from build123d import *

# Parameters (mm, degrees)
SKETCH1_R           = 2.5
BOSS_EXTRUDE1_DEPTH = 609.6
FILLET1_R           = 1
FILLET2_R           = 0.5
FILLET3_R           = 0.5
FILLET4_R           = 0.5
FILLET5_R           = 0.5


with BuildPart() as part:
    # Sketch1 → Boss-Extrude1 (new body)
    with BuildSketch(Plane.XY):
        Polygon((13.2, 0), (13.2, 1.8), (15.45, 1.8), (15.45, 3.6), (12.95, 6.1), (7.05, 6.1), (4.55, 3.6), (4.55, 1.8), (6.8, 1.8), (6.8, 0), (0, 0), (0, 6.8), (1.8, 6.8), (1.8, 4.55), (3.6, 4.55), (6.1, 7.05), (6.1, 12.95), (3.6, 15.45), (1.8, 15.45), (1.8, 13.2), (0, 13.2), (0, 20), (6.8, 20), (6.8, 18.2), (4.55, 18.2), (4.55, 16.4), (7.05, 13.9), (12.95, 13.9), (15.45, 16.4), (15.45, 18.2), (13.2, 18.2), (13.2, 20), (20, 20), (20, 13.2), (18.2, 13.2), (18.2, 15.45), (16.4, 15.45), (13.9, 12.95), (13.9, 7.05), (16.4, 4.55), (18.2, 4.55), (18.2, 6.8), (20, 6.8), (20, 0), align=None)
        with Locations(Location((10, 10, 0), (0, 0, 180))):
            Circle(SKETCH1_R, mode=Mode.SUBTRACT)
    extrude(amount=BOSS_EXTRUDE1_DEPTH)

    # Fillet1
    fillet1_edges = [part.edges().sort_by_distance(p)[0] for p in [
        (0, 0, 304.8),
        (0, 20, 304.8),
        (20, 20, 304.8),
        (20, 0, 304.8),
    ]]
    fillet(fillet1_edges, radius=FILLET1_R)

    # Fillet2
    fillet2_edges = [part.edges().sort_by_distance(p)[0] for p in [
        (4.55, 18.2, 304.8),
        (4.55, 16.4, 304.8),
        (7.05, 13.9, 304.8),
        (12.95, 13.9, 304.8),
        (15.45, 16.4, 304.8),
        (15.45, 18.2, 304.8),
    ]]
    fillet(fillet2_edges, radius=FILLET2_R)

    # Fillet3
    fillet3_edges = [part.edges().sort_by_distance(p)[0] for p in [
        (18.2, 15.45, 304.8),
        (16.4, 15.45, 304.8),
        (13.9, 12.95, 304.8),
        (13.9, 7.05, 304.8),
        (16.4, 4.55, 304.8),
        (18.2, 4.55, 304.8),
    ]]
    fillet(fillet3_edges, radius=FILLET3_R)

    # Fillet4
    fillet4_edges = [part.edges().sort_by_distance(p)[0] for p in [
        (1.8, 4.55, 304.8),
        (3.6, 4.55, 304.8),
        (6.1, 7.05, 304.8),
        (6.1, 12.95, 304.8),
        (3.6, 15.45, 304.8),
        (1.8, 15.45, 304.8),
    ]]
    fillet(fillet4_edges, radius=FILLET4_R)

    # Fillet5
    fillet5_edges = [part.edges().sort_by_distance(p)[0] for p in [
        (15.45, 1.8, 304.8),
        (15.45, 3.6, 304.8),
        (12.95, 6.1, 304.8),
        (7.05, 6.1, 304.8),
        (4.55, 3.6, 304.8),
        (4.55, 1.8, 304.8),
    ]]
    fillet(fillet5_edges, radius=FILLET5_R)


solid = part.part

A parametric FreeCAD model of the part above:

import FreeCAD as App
import Part
import Sketcher
from FreeCAD import Vector
Q = App.Units.Quantity


def edges_at(feature, points):
    """Names of the edges that pass closest to the given points."""
    edges = feature.Shape.Edges
    near = lambda p: min(range(len(edges)), key=lambda i: edges[i].distToShape(Part.Vertex(*p))[0])
    return sorted({f"Edge{near(p) + 1}" for p in points})


def add_polygon(sketch, points):
    """Adds a closed chain of lines whose ends are joined by coincident constraints."""
    first, n = sketch.GeometryCount, len(points)
    for a, b in zip(points, points[1:] + points[:1]):
        sketch.addGeometry(Part.LineSegment(App.Vector(*a, 0), App.Vector(*b, 0)), False)
    for i in range(n):
        sketch.addConstraint(Sketcher.Constraint("Coincident", first + i, 2, first + (i + 1) % n, 1))

doc = App.newDocument("Part")
params = doc.addObject("Spreadsheet::Sheet", "Params")
for row, (alias, value) in enumerate([
    ("sketch1_diameter", "5 mm"),
    ("sketch1_width", "6.8 mm"),
    ("sketch1_width2", "1.8 mm"),
    ("sketch1_width3", "5.9 mm"),
    ("sketch1_width4", "2.25 mm"),
    ("pad1_length", "609.6 mm"),
    ("fillet_radius", "1 mm"),
    ("fillet2_radius", "0.5 mm"),
    ("fillet3_radius", "0.5 mm"),
    ("fillet4_radius", "0.5 mm"),
    ("fillet5_radius", "0.5 mm"),
], start=1):
    params.set(f"A{row}", alias)
    params.set(f"B{row}", "=" + value)
    params.setAlias(f"B{row}", alias)

body = doc.addObject("PartDesign::Body", "Body")

# Sketch on XY plane
sketch1 = doc.addObject("Sketcher::SketchObject", "Sketch")
body.addObject(sketch1)
sketch1.AttachmentSupport = (doc.XY_Plane, [""])
sketch1.MapMode = "FlatFace"
add_polygon(sketch1, [(13.2, 1.8), (13.2, 0), (20, 0), (20, 6.8), (18.2, 6.8), (18.2, 4.5), (16.4, 4.5), (13.9, 7), (13.9, 12.9), (16.4, 15.4), (18.2, 15.4), (18.2, 13.2), (20, 13.2), (20, 20), (13.2, 20), (13.2, 18.2), (15.4, 18.2), (15.4, 16.4), (12.9, 13.9), (7, 13.9), (4.5, 16.4), (4.5, 18.2), (6.8, 18.2), (6.8, 20), (0, 20), (0, 13.2), (1.8, 13.2), (1.8, 15.4), (3.6, 15.4), (6.1, 12.9), (6.1, 7), (3.6, 4.5), (1.8, 4.5), (1.8, 6.8), (0, 6.8), (0, 0), (6.8, 0), (6.8, 1.8), (4.5, 1.8), (4.5, 3.6), (7, 6.1), (12.9, 6.1), (15.4, 3.6), (15.4, 1.8)])  # lines 0-43
sketch1.addGeometry(Part.Circle(Vector(10, 10, 0), Vector(0, 0, 1), 2.5), False)  # 44
sketch1.addConstraint(Sketcher.Constraint("Vertical", 0))
sketch1.addConstraint(Sketcher.Constraint("Horizontal", 1))
sketch1.addConstraint(Sketcher.Constraint("Vertical", 2))
sketch1.addConstraint(Sketcher.Constraint("Horizontal", 3))
sketch1.addConstraint(Sketcher.Constraint("Vertical", 4))
sketch1.addConstraint(Sketcher.Constraint("Horizontal", 5))
sketch1.addConstraint(Sketcher.Constraint("Vertical", 7))
sketch1.addConstraint(Sketcher.Constraint("Horizontal", 9))
sketch1.addConstraint(Sketcher.Constraint("Vertical", 10))
sketch1.addConstraint(Sketcher.Constraint("Horizontal", 11))
sketch1.addConstraint(Sketcher.Constraint("Vertical", 12))
sketch1.addConstraint(Sketcher.Constraint("Horizontal", 13))
sketch1.addConstraint(Sketcher.Constraint("Vertical", 14))
sketch1.addConstraint(Sketcher.Constraint("Horizontal", 15))
sketch1.addConstraint(Sketcher.Constraint("Vertical", 16))
sketch1.addConstraint(Sketcher.Constraint("Horizontal", 18))
sketch1.addConstraint(Sketcher.Constraint("Vertical", 20))
sketch1.addConstraint(Sketcher.Constraint("Horizontal", 21))
sketch1.addConstraint(Sketcher.Constraint("Vertical", 22))
sketch1.addConstraint(Sketcher.Constraint("Horizontal", 23))
sketch1.addConstraint(Sketcher.Constraint("Vertical", 24))
sketch1.addConstraint(Sketcher.Constraint("Horizontal", 25))
sketch1.addConstraint(Sketcher.Constraint("Vertical", 26))
sketch1.addConstraint(Sketcher.Constraint("Horizontal", 27))
sketch1.addConstraint(Sketcher.Constraint("Vertical", 29))
sketch1.addConstraint(Sketcher.Constraint("Horizontal", 31))
sketch1.addConstraint(Sketcher.Constraint("Vertical", 32))
sketch1.addConstraint(Sketcher.Constraint("Horizontal", 33))
sketch1.addConstraint(Sketcher.Constraint("Vertical", 34))
sketch1.addConstraint(Sketcher.Constraint("Horizontal", 35))
sketch1.addConstraint(Sketcher.Constraint("Vertical", 36))
sketch1.addConstraint(Sketcher.Constraint("Horizontal", 37))
sketch1.addConstraint(Sketcher.Constraint("Vertical", 38))
sketch1.addConstraint(Sketcher.Constraint("Horizontal", 40))
sketch1.addConstraint(Sketcher.Constraint("Vertical", 42))
sketch1.addConstraint(Sketcher.Constraint("Horizontal", 43))
sketch1.addConstraint(Sketcher.Constraint("Coincident", 34, 2, -1, 1))
sketch1.addConstraint(Sketcher.Constraint("PointOnObject", 0, 2, -1))
sketch1.addConstraint(Sketcher.Constraint("PointOnObject", 23, 2, -2))
sketch1.addConstraint(Sketcher.Constraint("Perpendicular", 6, 8))
sketch1.addConstraint(Sketcher.Constraint("Parallel", 8, 17))
sketch1.addConstraint(Sketcher.Constraint("Perpendicular", 17, 19))
sketch1.addConstraint(Sketcher.Constraint("Parallel", 19, 28))
sketch1.addConstraint(Sketcher.Constraint("Perpendicular", 28, 30))
sketch1.addConstraint(Sketcher.Constraint("Parallel", 30, 39))
sketch1.addConstraint(Sketcher.Constraint("Perpendicular", 39, 41))
sketch1.addConstraint(Sketcher.Constraint("Horizontal", 16, 2, 19, 2))
sketch1.addConstraint(Sketcher.Constraint("Horizontal", 15, 2, 20, 2))
sketch1.addConstraint(Sketcher.Constraint("Horizontal", 13, 2, 22, 2))
sketch1.addConstraint(Sketcher.Constraint("Horizontal", 11, 2, 24, 2))
sketch1.addConstraint(Sketcher.Constraint("Horizontal", 9, 2, 26, 2))
sketch1.addConstraint(Sketcher.Constraint("Horizontal", 7, 2, 28, 2))
sketch1.addConstraint(Sketcher.Constraint("Horizontal", 6, 2, 29, 2))
sketch1.addConstraint(Sketcher.Constraint("Horizontal", 5, 2, 30, 2))
sketch1.addConstraint(Sketcher.Constraint("Horizontal", 3, 2, 32, 2))
sketch1.addConstraint(Sketcher.Constraint("Horizontal", 38, 2, 41, 2))
sketch1.addConstraint(Sketcher.Constraint("Horizontal", 37, 2, 42, 2))
sketch1.addConstraint(Sketcher.Constraint("Vertical", 5, 2, 8, 2))
sketch1.addConstraint(Sketcher.Constraint("Vertical", 4, 2, 9, 2))
sketch1.addConstraint(Sketcher.Constraint("Vertical", 2, 2, 11, 2))
sketch1.addConstraint(Sketcher.Constraint("Vertical", 0, 2, 13, 2))
sketch1.addConstraint(Sketcher.Constraint("Vertical", 27, 2, 30, 2))
sketch1.addConstraint(Sketcher.Constraint("Vertical", 26, 2, 31, 2))
sketch1.addConstraint(Sketcher.Constraint("Vertical", 22, 2, 35, 2))
sketch1.addConstraint(Sketcher.Constraint("Vertical", 20, 2, 37, 2))
sketch1.addConstraint(Sketcher.Constraint("Vertical", 18, 2, 39, 2))
sketch1.addConstraint(Sketcher.Constraint("Vertical", 17, 2, 40, 2))
sketch1.addConstraint(Sketcher.Constraint("Equal", 3, 5))
sketch1.addConstraint(Sketcher.Constraint("Equal", 15, 21))
sketch1.addConstraint(Sketcher.Constraint("Equal", 13, 23))
sketch1.addConstraint(Sketcher.Constraint("Equal", 11, 25))
sketch1.addConstraint(Sketcher.Constraint("Equal", 25, 27))
sketch1.addConstraint(Sketcher.Constraint("Equal", 33, 0))
sketch1.addConstraint(Sketcher.Constraint("Equal", 35, 2))
sketch1.addConstraint(Sketcher.Constraint("Equal", 43, 4))
sketch1.addConstraint(Sketcher.Constraint("Equal", 40, 7))
sketch1.addConstraint(Sketcher.Constraint("Equal", 4, 10))
sketch1.addConstraint(Sketcher.Constraint("Equal", 2, 12))
sketch1.addConstraint(Sketcher.Constraint("Equal", 0, 14))
sketch1.addConstraint(Sketcher.Constraint("Equal", 14, 16))
sketch1.addConstraint(Sketcher.Constraint("Equal", 36, 38))
sketch1.addConstraint(Sketcher.Constraint("Equal", 8, 17))
sketch1.addConstraint(Sketcher.Constraint("Diameter", 44, Q("5 mm")))
sketch1.addConstraint(Sketcher.Constraint("DistanceX", 1, 1, 1, 2, Q("6.8 mm")))
sketch1.addConstraint(Sketcher.Constraint("DistanceX", 3, 2, 3, 1, Q("1.8 mm")))
sketch1.addConstraint(Sketcher.Constraint("DistanceX", 18, 2, 18, 1, Q("5.9 mm")))
sketch1.addConstraint(Sketcher.Constraint("DistanceX", -1, 1, 44, 3, Q("10 mm")))
sketch1.addConstraint(Sketcher.Constraint("DistanceY", -1, 1, 44, 3, Q("10 mm")))
sketch1.addConstraint(Sketcher.Constraint("DistanceX", -1, 1, 1, 2, Q("20 mm")))
sketch1.addConstraint(Sketcher.Constraint("DistanceX", 15, 1, 15, 2, Q("2.25 mm")))
sketch1.setExpression("Constraints[126]", "Params.sketch1_diameter")
sketch1.setExpression("Constraints[127]", "Params.sketch1_width")
sketch1.setExpression("Constraints[128]", "Params.sketch1_width2")
sketch1.setExpression("Constraints[129]", "Params.sketch1_width3")
sketch1.setExpression("Constraints[133]", "Params.sketch1_width4")
pad1 = doc.addObject("PartDesign::Pad", "Pad")
body.addObject(pad1)
pad1.Profile = sketch1
pad1.setExpression("Length", "Params.pad1_length")
doc.recompute()

fillet = doc.addObject("PartDesign::Fillet", "Fillet")
body.addObject(fillet)
fillet.Base = (pad1, edges_at(pad1, [
    (0, 0, 304.8),
    (0, 20, 304.8),
    (20, 20, 304.8),
    (20, 0, 304.8),
]))
fillet.setExpression("Radius", "Params.fillet_radius")
doc.recompute()

fillet2 = doc.addObject("PartDesign::Fillet", "Fillet001")
body.addObject(fillet2)
fillet2.Base = (fillet, edges_at(fillet, [
    (4.55, 18.2, 304.8),
    (4.55, 16.4, 304.8),
    (7.05, 13.9, 304.8),
    (12.95, 13.9, 304.8),
    (15.45, 16.4, 304.8),
    (15.45, 18.2, 304.8),
]))
fillet2.setExpression("Radius", "Params.fillet2_radius")
doc.recompute()

fillet3 = doc.addObject("PartDesign::Fillet", "Fillet002")
body.addObject(fillet3)
fillet3.Base = (fillet2, edges_at(fillet2, [
    (18.2, 15.45, 304.8),
    (16.4, 15.45, 304.8),
    (13.9, 12.95, 304.8),
    (13.9, 7.05, 304.8),
    (16.4, 4.55, 304.8),
    (18.2, 4.55, 304.8),
]))
fillet3.setExpression("Radius", "Params.fillet3_radius")
doc.recompute()

fillet4 = doc.addObject("PartDesign::Fillet", "Fillet003")
body.addObject(fillet4)
fillet4.Base = (fillet3, edges_at(fillet3, [
    (1.8, 4.55, 304.8),
    (3.6, 4.55, 304.8),
    (6.1, 7.05, 304.8),
    (6.1, 12.95, 304.8),
    (3.6, 15.45, 304.8),
    (1.8, 15.45, 304.8),
]))
fillet4.setExpression("Radius", "Params.fillet4_radius")
doc.recompute()

fillet5 = doc.addObject("PartDesign::Fillet", "Fillet004")
body.addObject(fillet5)
fillet5.Base = (fillet4, edges_at(fillet4, [
    (15.45, 1.8, 304.8),
    (15.45, 3.6, 304.8),
    (12.95, 6.1, 304.8),
    (7.05, 6.1, 304.8),
    (4.55, 3.6, 304.8),
    (4.55, 1.8, 304.8),
]))
fillet5.setExpression("Radius", "Params.fillet5_radius")

doc.recompute()
